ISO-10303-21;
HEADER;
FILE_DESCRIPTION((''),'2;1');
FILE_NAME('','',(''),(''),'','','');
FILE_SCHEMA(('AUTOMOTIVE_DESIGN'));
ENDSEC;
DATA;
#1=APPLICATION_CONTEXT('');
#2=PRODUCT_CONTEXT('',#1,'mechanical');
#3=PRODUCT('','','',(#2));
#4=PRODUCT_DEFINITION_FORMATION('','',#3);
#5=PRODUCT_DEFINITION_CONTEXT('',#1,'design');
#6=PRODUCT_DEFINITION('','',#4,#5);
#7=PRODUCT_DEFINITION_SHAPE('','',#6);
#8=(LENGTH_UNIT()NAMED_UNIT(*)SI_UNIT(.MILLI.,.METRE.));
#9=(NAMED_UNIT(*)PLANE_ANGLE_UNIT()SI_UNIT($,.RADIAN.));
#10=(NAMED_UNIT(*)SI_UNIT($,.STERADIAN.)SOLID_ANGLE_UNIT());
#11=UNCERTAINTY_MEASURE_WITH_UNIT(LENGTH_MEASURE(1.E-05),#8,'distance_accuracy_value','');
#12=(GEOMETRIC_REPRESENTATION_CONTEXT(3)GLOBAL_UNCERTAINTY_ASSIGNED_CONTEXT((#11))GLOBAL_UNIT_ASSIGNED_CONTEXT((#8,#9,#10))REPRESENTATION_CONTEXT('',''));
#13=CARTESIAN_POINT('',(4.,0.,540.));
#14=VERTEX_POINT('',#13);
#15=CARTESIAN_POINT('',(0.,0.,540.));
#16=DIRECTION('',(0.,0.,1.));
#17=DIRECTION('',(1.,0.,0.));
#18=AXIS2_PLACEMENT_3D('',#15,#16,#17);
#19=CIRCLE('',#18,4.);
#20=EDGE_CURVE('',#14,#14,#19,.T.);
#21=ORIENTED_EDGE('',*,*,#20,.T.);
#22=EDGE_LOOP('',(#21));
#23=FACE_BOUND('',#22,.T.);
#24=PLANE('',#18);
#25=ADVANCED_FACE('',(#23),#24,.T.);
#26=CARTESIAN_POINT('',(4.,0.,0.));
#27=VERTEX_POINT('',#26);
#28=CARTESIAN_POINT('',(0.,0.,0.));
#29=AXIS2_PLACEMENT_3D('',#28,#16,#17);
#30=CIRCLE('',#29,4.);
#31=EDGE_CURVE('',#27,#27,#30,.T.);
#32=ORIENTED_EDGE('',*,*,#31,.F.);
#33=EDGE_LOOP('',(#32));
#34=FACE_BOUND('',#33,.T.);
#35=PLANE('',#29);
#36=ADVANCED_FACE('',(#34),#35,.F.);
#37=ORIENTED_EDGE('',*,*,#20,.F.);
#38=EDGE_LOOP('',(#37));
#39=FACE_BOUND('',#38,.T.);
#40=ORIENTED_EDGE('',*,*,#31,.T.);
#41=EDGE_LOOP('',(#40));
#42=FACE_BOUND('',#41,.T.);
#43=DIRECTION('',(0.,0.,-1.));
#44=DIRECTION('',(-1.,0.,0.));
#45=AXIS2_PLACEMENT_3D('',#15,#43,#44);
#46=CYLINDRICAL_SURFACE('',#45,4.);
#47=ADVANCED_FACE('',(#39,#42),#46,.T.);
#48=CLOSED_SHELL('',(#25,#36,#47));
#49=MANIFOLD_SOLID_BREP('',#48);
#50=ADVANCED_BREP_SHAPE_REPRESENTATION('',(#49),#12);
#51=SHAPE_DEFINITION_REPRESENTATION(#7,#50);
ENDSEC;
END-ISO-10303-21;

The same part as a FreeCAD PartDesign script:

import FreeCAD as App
import Part
import Sketcher

doc = App.newDocument("Part")
body = doc.addObject("PartDesign::Body", "Body")

# Sketch on XY plane
sketch1 = body.newObject("Sketcher::SketchObject", "Sketch")
sketch1.AttachmentSupport = (doc.getObject("XY_Plane"), [""])
sketch1.MapMode = "FlatFace"
sketch1.addGeometry(Part.Circle(App.Vector(0, 0, 0), App.Vector(0, 0, 1), 4), False)
sketch1.addConstraint(Sketcher.Constraint("Coincident", 0, 3, -1, 1))
sketch1.addConstraint(Sketcher.Constraint("Diameter", 0, 8.0))
pad1 = body.newObject("PartDesign::Pad", "Pad")
pad1.Profile = sketch1
pad1.Length = 540

doc.recompute()
